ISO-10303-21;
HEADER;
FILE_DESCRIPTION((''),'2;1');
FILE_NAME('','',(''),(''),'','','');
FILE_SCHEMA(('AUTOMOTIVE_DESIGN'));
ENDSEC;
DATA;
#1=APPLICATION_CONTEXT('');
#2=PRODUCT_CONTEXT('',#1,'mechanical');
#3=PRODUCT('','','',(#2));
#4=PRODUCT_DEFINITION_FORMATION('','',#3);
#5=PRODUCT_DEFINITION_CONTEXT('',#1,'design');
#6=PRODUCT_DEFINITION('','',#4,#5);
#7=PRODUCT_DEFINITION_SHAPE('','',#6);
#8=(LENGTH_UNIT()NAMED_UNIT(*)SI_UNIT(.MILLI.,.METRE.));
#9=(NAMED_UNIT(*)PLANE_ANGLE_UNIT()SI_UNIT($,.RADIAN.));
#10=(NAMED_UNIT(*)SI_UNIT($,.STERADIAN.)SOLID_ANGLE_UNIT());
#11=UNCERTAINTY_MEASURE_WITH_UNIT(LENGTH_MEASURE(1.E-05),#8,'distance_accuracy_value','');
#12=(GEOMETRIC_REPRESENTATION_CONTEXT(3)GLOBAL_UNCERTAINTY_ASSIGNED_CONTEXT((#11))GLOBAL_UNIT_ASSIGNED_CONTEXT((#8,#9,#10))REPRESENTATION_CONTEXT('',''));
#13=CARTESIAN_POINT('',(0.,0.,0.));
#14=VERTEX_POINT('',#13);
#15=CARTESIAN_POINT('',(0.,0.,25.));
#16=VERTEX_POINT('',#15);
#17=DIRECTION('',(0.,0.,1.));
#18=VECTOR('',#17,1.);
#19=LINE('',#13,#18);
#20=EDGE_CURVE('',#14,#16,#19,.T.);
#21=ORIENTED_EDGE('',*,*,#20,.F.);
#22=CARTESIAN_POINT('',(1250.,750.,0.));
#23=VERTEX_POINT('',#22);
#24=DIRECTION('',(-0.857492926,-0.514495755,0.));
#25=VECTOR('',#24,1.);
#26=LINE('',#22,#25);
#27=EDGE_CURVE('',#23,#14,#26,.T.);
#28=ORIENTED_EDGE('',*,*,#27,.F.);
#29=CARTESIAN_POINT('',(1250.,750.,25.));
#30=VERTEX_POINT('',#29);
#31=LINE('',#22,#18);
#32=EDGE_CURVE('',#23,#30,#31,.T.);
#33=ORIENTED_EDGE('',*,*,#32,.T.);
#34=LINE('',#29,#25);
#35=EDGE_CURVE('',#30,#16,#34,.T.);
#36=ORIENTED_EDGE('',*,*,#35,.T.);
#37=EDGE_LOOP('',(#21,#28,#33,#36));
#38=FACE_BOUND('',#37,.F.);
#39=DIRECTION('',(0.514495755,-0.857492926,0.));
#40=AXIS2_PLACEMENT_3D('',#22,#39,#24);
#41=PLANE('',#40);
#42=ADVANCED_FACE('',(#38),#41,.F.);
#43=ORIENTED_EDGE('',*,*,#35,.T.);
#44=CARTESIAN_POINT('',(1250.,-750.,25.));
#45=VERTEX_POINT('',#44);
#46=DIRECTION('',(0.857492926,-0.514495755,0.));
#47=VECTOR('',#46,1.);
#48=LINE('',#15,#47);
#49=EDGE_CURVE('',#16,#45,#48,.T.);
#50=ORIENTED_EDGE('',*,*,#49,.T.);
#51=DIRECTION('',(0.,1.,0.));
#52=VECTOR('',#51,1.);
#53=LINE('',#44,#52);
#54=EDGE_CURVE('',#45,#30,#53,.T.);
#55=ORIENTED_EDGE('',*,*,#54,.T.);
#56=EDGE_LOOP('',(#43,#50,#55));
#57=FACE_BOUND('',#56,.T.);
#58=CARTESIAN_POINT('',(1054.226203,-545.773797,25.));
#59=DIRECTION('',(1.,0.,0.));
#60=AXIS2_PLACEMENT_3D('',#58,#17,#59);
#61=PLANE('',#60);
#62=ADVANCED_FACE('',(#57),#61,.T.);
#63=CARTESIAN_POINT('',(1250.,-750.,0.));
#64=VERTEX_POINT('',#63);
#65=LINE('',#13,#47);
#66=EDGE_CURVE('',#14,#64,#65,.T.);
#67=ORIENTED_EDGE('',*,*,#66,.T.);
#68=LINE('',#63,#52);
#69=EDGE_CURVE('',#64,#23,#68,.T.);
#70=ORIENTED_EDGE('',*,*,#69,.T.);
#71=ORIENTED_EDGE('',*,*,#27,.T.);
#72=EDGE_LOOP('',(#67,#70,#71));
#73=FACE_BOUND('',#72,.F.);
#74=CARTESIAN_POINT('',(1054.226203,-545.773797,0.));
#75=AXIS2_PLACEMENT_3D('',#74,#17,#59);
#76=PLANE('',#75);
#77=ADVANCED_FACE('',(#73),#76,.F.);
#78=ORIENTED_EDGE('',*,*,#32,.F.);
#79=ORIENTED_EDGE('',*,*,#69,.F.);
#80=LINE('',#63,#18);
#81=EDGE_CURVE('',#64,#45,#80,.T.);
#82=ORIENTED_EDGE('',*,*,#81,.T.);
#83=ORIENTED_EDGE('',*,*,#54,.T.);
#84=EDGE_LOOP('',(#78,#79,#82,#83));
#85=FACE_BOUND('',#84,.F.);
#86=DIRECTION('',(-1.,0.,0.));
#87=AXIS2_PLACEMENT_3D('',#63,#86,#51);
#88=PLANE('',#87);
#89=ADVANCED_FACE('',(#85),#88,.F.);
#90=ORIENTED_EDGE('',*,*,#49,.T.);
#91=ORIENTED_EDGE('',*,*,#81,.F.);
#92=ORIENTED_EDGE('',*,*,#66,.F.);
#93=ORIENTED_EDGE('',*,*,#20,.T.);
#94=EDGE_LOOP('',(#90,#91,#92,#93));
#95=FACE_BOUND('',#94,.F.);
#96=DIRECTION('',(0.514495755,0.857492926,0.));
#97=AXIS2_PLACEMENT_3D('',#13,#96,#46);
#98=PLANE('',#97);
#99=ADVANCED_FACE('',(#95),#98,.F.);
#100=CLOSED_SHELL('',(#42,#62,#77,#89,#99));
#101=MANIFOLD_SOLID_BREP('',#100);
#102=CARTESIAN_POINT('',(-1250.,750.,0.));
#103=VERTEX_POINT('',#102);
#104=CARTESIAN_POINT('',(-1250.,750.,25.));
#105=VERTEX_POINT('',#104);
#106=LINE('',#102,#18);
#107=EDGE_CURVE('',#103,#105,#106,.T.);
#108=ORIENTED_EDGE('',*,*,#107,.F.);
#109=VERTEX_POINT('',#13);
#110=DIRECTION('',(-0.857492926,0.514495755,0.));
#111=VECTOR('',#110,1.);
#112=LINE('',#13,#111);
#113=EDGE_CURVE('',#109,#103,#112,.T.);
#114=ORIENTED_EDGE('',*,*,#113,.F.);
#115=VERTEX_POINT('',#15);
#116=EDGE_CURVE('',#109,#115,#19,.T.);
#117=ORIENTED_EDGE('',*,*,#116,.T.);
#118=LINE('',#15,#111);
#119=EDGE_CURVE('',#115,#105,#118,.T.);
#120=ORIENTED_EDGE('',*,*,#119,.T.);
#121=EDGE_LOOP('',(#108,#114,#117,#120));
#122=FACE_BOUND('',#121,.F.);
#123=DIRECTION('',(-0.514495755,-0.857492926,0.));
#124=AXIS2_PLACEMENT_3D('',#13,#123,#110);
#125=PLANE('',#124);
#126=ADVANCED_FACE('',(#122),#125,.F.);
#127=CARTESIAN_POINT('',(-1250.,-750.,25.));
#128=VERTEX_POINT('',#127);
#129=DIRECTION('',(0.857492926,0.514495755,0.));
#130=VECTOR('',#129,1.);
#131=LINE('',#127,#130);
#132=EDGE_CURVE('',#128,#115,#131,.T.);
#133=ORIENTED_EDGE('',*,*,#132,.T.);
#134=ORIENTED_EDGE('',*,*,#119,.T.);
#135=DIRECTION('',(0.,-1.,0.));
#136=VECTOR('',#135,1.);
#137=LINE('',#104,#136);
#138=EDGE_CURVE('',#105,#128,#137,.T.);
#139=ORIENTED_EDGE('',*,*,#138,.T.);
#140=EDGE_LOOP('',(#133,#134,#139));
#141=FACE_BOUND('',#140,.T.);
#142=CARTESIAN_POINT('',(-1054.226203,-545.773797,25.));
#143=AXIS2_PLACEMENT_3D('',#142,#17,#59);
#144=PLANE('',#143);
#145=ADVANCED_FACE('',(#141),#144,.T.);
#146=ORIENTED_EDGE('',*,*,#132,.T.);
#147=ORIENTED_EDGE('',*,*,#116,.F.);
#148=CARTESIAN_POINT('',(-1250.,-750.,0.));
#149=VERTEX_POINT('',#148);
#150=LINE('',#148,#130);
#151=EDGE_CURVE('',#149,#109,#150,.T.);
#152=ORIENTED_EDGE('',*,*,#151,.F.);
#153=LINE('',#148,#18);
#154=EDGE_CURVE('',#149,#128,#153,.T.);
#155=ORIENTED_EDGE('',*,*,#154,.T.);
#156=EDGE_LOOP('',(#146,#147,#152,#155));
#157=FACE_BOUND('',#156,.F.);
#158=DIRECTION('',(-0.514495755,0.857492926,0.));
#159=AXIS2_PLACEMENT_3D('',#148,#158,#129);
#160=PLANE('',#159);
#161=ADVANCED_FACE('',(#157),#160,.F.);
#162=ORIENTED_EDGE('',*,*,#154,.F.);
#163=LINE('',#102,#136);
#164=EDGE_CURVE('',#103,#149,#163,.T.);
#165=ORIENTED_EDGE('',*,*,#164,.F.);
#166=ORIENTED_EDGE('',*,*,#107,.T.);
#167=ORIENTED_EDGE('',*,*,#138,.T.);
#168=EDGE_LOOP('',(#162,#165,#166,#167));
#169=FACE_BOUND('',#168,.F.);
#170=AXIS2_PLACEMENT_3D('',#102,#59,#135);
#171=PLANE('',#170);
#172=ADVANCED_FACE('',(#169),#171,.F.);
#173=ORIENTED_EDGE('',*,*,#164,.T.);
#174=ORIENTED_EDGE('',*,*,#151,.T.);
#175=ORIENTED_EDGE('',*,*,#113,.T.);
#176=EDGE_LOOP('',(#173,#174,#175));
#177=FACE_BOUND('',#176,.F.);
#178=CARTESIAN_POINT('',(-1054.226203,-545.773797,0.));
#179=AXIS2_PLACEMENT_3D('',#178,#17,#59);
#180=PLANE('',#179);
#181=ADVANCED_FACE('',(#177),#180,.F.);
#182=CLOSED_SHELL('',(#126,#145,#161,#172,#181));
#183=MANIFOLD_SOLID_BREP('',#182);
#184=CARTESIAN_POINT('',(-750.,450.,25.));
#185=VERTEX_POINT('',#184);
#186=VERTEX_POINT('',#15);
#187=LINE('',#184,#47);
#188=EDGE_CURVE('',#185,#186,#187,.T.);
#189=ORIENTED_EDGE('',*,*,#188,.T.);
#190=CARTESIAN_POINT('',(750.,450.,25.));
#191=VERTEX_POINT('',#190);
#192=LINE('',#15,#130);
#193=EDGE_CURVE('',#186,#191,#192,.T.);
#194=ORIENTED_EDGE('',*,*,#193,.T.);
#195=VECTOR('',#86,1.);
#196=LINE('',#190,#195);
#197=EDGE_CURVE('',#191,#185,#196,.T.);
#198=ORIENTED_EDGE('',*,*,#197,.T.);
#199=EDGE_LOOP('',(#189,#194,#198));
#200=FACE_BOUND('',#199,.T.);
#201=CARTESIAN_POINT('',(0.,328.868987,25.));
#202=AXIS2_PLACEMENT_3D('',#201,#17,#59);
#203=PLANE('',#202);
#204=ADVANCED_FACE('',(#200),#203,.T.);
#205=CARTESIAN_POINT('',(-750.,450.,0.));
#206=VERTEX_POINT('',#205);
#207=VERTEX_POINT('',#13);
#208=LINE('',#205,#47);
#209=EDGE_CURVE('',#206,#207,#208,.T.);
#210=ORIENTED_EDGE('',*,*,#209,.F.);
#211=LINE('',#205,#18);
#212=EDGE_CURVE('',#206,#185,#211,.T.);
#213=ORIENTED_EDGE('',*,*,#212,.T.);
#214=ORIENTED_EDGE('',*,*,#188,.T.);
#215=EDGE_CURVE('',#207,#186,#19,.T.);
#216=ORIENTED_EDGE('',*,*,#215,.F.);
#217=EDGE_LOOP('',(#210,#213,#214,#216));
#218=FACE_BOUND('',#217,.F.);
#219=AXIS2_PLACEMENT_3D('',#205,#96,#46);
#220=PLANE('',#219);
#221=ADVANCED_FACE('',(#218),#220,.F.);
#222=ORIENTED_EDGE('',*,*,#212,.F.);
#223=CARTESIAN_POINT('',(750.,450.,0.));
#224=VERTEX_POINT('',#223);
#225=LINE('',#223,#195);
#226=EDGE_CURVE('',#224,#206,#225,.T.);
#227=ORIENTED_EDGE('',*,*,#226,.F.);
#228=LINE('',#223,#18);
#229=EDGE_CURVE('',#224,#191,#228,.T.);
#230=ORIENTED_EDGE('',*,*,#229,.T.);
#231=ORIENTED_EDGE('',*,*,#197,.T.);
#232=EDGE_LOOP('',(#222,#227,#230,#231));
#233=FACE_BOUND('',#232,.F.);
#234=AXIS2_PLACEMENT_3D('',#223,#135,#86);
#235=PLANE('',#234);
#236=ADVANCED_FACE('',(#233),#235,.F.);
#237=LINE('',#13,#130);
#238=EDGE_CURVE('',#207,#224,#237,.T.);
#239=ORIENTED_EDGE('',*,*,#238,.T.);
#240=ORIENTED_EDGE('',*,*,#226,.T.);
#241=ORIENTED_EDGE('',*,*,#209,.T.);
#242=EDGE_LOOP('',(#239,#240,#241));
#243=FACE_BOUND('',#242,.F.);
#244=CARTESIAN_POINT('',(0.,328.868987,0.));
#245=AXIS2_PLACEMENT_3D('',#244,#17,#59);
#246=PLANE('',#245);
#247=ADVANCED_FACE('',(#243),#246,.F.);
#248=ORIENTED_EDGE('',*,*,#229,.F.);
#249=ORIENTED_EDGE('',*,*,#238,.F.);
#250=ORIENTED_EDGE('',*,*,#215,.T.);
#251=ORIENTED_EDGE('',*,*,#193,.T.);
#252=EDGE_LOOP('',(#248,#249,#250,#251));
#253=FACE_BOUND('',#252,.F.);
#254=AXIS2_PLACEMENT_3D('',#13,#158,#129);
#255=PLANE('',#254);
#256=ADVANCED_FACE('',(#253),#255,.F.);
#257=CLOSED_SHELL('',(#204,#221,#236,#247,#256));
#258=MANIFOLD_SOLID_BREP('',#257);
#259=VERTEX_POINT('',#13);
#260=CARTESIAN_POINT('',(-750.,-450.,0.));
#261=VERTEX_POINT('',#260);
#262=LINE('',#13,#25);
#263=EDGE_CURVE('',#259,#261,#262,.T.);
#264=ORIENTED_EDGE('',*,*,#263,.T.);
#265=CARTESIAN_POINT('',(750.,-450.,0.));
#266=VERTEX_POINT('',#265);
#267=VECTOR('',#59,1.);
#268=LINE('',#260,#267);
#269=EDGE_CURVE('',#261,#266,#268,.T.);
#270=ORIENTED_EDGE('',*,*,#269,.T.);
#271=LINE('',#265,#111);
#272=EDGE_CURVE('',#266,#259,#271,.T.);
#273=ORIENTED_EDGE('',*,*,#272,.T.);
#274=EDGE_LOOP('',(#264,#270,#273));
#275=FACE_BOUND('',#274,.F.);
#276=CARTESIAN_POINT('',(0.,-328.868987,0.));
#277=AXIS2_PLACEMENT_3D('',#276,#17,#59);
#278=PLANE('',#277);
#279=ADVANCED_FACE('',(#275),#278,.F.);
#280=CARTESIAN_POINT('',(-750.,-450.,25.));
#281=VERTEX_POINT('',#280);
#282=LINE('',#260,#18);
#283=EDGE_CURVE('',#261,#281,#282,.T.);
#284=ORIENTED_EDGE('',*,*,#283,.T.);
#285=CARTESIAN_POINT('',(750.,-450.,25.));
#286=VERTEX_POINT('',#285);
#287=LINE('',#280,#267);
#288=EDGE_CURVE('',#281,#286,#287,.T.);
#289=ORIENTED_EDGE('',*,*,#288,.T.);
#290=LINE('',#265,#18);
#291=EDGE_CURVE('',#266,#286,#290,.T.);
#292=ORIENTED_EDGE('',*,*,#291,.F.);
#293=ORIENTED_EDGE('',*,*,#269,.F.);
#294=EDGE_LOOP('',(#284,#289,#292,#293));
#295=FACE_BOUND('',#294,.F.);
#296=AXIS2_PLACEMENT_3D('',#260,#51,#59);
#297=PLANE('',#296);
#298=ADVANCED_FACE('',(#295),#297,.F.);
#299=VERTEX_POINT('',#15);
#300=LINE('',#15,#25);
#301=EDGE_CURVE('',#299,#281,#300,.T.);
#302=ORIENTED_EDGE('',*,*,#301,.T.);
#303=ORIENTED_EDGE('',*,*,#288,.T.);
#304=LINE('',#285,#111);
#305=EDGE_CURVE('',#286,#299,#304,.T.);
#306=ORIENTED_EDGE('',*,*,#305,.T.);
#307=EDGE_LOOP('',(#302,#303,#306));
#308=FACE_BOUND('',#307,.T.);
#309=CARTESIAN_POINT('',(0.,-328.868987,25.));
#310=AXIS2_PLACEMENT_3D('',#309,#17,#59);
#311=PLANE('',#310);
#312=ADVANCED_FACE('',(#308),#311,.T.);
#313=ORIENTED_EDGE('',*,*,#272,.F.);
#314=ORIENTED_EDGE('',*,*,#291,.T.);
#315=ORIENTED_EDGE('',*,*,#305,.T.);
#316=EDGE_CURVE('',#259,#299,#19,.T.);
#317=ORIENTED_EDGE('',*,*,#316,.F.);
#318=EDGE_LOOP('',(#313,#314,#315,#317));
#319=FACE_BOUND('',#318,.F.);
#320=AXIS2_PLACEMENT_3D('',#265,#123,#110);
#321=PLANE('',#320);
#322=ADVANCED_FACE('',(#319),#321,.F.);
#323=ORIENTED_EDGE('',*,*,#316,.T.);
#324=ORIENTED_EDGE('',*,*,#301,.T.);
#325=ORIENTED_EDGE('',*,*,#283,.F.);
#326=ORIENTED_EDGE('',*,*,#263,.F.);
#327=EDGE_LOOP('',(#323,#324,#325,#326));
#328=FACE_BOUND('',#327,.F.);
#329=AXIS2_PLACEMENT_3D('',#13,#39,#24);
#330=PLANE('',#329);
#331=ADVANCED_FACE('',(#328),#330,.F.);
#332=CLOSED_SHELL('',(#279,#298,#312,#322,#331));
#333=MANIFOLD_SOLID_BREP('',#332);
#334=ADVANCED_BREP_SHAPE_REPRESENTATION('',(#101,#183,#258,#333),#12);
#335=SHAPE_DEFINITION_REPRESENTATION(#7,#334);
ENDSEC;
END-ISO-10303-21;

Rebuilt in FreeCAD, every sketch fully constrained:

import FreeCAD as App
import Part
import Sketcher
from FreeCAD import Vector

doc = App.newDocument("Part")
body = doc.addObject("PartDesign::Body", "Body")

sketch1 = body.newObject("Sketcher::SketchObject", "Sketch")
sketch1.AttachmentSupport = (doc.getObject("XY_Plane"), [""])
sketch1.MapMode = "FlatFace"
sketch1.addGeometry(Part.LineSegment(Vector(1250, -750, 0), Vector(1250, 750, 0)), False)
sketch1.addGeometry(Part.LineSegment(Vector(1250, 750, 0), Vector(0, 0, 0)), False)
sketch1.addGeometry(Part.LineSegment(Vector(0, 0, 0), Vector(1250, -750, 0)), False)
sketch1.addConstraint(Sketcher.Constraint("Coincident", 0, 2, 1, 1))
sketch1.addConstraint(Sketcher.Constraint("Coincident", 1, 2, 2, 1))
sketch1.addConstraint(Sketcher.Constraint("Coincident", 2, 2, 0, 1))
sketch1.addConstraint(Sketcher.Constraint("Vertical", 0))
sketch1.addConstraint(Sketcher.Constraint("Coincident", 1, 2, -1, 1))
sketch1.addConstraint(Sketcher.Constraint("Equal", 1, 2))
sketch1.addConstraint(Sketcher.Constraint("DistanceY", 0, 1, 0, 2, 1500.0))
sketch1.addConstraint(Sketcher.Constraint("DistanceX", -1, 1, 0, 2, 1250.0))
pad1 = body.newObject("PartDesign::Pad", "Pad")
pad1.Profile = sketch1
pad1.Length = 25
body2 = doc.addObject("PartDesign::Body", "Body001")

sketch2 = body2.newObject("Sketcher::SketchObject", "Sketch001")
sketch2.AttachmentSupport = (doc.getObject("XY_Plane001"), [""])
sketch2.MapMode = "FlatFace"
sketch2.addGeometry(Part.LineSegment(Vector(-1250, -750, 0), Vector(0, 0, 0)), False)
sketch2.addGeometry(Part.LineSegment(Vector(0, 0, 0), Vector(-1250, 750, 0)), False)
sketch2.addGeometry(Part.LineSegment(Vector(-1250, 750, 0), Vector(-1250, -750, 0)), False)
sketch2.addConstraint(Sketcher.Constraint("Coincident", 0, 2, 1, 1))
sketch2.addConstraint(Sketcher.Constraint("Coincident", 1, 2, 2, 1))
sketch2.addConstraint(Sketcher.Constraint("Coincident", 2, 2, 0, 1))
sketch2.addConstraint(Sketcher.Constraint("Vertical", 2))
sketch2.addConstraint(Sketcher.Constraint("Coincident", 0, 2, -1, 1))
sketch2.addConstraint(Sketcher.Constraint("Equal", 0, 1))
sketch2.addConstraint(Sketcher.Constraint("DistanceY", 2, 2, 2, 1, 1500.0))
sketch2.addConstraint(Sketcher.Constraint("DistanceX", 1, 2, -1, 1, 1250.0))
pad2 = body2.newObject("PartDesign::Pad", "Pad001")
pad2.Profile = sketch2
pad2.Length = 25
body3 = doc.addObject("PartDesign::Body", "Body002")

sketch3 = body3.newObject("Sketcher::SketchObject", "Sketch002")
sketch3.AttachmentSupport = (doc.getObject("XY_Plane002"), [""])
sketch3.MapMode = "FlatFace"
sketch3.addGeometry(Part.LineSegment(Vector(-750, 450, 0), Vector(0, 0, 0)), False)
sketch3.addGeometry(Part.LineSegment(Vector(0, 0, 0), Vector(750, 450, 0)), False)
sketch3.addGeometry(Part.LineSegment(Vector(750, 450, 0), Vector(-750, 450, 0)), False)
sketch3.addConstraint(Sketcher.Constraint("Coincident", 0, 2, 1, 1))
sketch3.addConstraint(Sketcher.Constraint("Coincident", 1, 2, 2, 1))
sketch3.addConstraint(Sketcher.Constraint("Coincident", 2, 2, 0, 1))
sketch3.addConstraint(Sketcher.Constraint("Horizontal", 2))
sketch3.addConstraint(Sketcher.Constraint("Coincident", 0, 2, -1, 1))
sketch3.addConstraint(Sketcher.Constraint("Equal", 0, 1))
sketch3.addConstraint(Sketcher.Constraint("DistanceX", 2, 2, 2, 1, 1500.0))
sketch3.addConstraint(Sketcher.Constraint("DistanceY", -1, 1, 1, 2, 450.0))
pad3 = body3.newObject("PartDesign::Pad", "Pad002")
pad3.Profile = sketch3
pad3.Length = 25
body4 = doc.addObject("PartDesign::Body", "Body003")

sketch4 = body4.newObject("Sketcher::SketchObject", "Sketch003")
sketch4.AttachmentSupport = (doc.getObject("XY_Plane003"), [""])
sketch4.MapMode = "FlatFace"
sketch4.addGeometry(Part.LineSegment(Vector(-750, -450, 0), Vector(750, -450, 0)), False)
sketch4.addGeometry(Part.LineSegment(Vector(750, -450, 0), Vector(0, 0, 0)), False)
sketch4.addGeometry(Part.LineSegment(Vector(0, 0, 0), Vector(-750, -450, 0)), False)
sketch4.addConstraint(Sketcher.Constraint("Coincident", 0, 2, 1, 1))
sketch4.addConstraint(Sketcher.Constraint("Coincident", 1, 2, 2, 1))
sketch4.addConstraint(Sketcher.Constraint("Coincident", 2, 2, 0, 1))
sketch4.addConstraint(Sketcher.Constraint("Horizontal", 0))
sketch4.addConstraint(Sketcher.Constraint("Coincident", 1, 2, -1, 1))
sketch4.addConstraint(Sketcher.Constraint("Equal", 1, 2))
sketch4.addConstraint(Sketcher.Constraint("DistanceX", 0, 1, 0, 2, 1500.0))
sketch4.addConstraint(Sketcher.Constraint("DistanceY", 0, 2, -1, 1, 450.0))
pad4 = body4.newObject("PartDesign::Pad", "Pad003")
pad4.Profile = sketch4
pad4.Length = 25

doc.recompute()
